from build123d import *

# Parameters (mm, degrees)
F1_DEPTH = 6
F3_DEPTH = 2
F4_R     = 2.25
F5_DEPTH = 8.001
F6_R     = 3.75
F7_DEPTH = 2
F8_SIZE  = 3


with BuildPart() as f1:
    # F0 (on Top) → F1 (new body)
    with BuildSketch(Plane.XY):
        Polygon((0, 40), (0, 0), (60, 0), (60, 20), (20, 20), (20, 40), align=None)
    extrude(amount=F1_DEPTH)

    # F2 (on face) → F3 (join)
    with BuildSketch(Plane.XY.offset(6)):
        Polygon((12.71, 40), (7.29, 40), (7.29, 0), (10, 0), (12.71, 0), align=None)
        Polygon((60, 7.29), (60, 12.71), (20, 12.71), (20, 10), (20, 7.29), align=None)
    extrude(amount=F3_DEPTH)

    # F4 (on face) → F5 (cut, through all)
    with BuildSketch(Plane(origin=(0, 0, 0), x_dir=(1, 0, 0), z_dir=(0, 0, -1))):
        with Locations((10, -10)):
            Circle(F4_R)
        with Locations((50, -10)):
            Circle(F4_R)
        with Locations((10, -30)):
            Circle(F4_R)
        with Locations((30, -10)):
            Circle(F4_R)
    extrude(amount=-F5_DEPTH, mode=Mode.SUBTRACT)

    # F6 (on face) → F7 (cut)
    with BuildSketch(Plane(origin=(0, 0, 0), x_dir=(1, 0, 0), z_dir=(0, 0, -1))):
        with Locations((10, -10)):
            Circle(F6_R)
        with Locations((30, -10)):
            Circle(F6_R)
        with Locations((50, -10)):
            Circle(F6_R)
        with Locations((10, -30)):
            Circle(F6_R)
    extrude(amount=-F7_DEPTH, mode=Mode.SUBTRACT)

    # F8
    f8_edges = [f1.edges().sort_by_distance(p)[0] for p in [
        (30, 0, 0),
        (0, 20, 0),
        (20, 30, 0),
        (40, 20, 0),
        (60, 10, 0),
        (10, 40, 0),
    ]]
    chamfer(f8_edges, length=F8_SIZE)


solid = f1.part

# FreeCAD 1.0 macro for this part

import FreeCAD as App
import Part
import Sketcher
from FreeCAD import Vector


def edges_at(feature, points):
    """Names of the edges that pass closest to the given points."""
    edges = feature.Shape.Edges
    near = lambda p: min(range(len(edges)), key=lambda i: edges[i].distToShape(Part.Vertex(*p))[0])
    return sorted({f"Edge{near(p) + 1}" for p in points})

doc = App.newDocument("Part")
body = doc.addObject("PartDesign::Body", "Body")

sketch1 = body.newObject("Sketcher::SketchObject", "Sketch")
sketch1.AttachmentSupport = (doc.getObject("XY_Plane"), [""])
sketch1.MapMode = "FlatFace"
sketch1.addGeometry([
    Part.LineSegment(Vector(0, 40, 0), Vector(0, 0, 0)),
    Part.LineSegment(Vector(0, 0, 0), Vector(60, 0, 0)),
    Part.LineSegment(Vector(60, 0, 0), Vector(60, 20, 0)),
    Part.LineSegment(Vector(60, 20, 0), Vector(20, 20, 0)),
    Part.LineSegment(Vector(20, 20, 0), Vector(20, 40, 0)),
    Part.LineSegment(Vector(20, 40, 0), Vector(0, 40, 0)),
], False)
sketch1.addConstraint([
    Sketcher.Constraint("Coincident", 0, 2, 1, 1),
    Sketcher.Constraint("Coincident", 1, 2, 2, 1),
    Sketcher.Constraint("Coincident", 2, 2, 3, 1),
    Sketcher.Constraint("Coincident", 3, 2, 4, 1),
    Sketcher.Constraint("Coincident", 4, 2, 5, 1),
    Sketcher.Constraint("Coincident", 5, 2, 0, 1),
    Sketcher.Constraint("Vertical", 0),
    Sketcher.Constraint("Horizontal", 1),
    Sketcher.Constraint("Vertical", 2),
    Sketcher.Constraint("Horizontal", 3),
    Sketcher.Constraint("Vertical", 4),
    Sketcher.Constraint("Horizontal", 5),
    Sketcher.Constraint("Coincident", 0, 2, -1, 1),
    Sketcher.Constraint("Equal", 3, 0),
    Sketcher.Constraint("Equal", 5, 2),
    Sketcher.Constraint("Equal", 2, 4),
    Sketcher.Constraint("DistanceX", 1, 1, 1, 2, 60.0),
])
pad1 = body.newObject("PartDesign::Pad", "Pad")
pad1.Profile = sketch1
pad1.Length = 6

sketch2 = body.newObject("Sketcher::SketchObject", "Sketch001")
sketch2.AttachmentSupport = (doc.getObject("XY_Plane"), [""])
sketch2.MapMode = "FlatFace"
sketch2.AttachmentOffset = App.Placement(Vector(0, 0, 6), App.Rotation())
sketch2.addGeometry([
    Part.LineSegment(Vector(12.71, 40, 0), Vector(7.29, 40, 0)),
    Part.LineSegment(Vector(7.29, 40, 0), Vector(7.29, 0, 0)),
    Part.LineSegment(Vector(7.29, 0, 0), Vector(12.71, 0, 0)),
    Part.LineSegment(Vector(12.71, 0, 0), Vector(12.71, 40, 0)),
    Part.LineSegment(Vector(60, 7.29, 0), Vector(60, 12.71, 0)),
    Part.LineSegment(Vector(60, 12.71, 0), Vector(20, 12.71, 0)),
    Part.LineSegment(Vector(20, 12.71, 0), Vector(20, 7.29, 0)),
    Part.LineSegment(Vector(20, 7.29, 0), Vector(60, 7.29, 0)),
], False)
sketch2.addConstraint([
    Sketcher.Constraint("Coincident", 0, 2, 1, 1),
    Sketcher.Constraint("Coincident", 1, 2, 2, 1),
    Sketcher.Constraint("Coincident", 2, 2, 3, 1),
    Sketcher.Constraint("Coincident", 3, 2, 0, 1),
    Sketcher.Constraint("Coincident", 4, 2, 5, 1),
    Sketcher.Constraint("Coincident", 5, 2, 6, 1),
    Sketcher.Constraint("Coincident", 6, 2, 7, 1),
    Sketcher.Constraint("Coincident", 7, 2, 4, 1),
    Sketcher.Constraint("Horizontal", 0),
    Sketcher.Constraint("Vertical", 1),
    Sketcher.Constraint("Horizontal", 2),
    Sketcher.Constraint("Vertical", 3),
    Sketcher.Constraint("Vertical", 4),
    Sketcher.Constraint("Horizontal", 5),
    Sketcher.Constraint("Vertical", 6),
    Sketcher.Constraint("Horizontal", 7),
    Sketcher.Constraint("PointOnObject", 1, 2, -1),
    Sketcher.Constraint("Equal", 7, 1),
    Sketcher.Constraint("Equal", 2, 4),
    Sketcher.Constraint("DistanceX", 5, 2, 5, 1, 40.0),
    Sketcher.Constraint("DistanceX", -1, 1, 4, 2, 60.0),
    Sketcher.Constraint("DistanceX", 0, 2, 0, 1, 5.42),
    Sketcher.Constraint("DistanceX", -1, 1, 0, 2, 7.29),
    Sketcher.Constraint("DistanceY", -1, 1, 4, 2, 12.71),
])
pad2 = body.newObject("PartDesign::Pad", "Pad001")
pad2.Profile = sketch2
pad2.Length = 2

sketch3 = body.newObject("Sketcher::SketchObject", "Sketch002")
sketch3.AttachmentSupport = (doc.getObject("XY_Plane"), [""])
sketch3.MapMode = "FlatFace"
sketch3.addGeometry([
    Part.Circle(Vector(10, 10, 0), Vector(0, 0, 1), 2.25),
    Part.Circle(Vector(50, 10, 0), Vector(0, 0, 1), 2.25),
    Part.Circle(Vector(10, 30, 0), Vector(0, 0, 1), 2.25),
    Part.Circle(Vector(30, 10, 0), Vector(0, 0, 1), 2.25),
], False)
sketch3.addConstraint([
    Sketcher.Constraint("Equal", 0, 1),
    Sketcher.Constraint("Equal", 1, 2),
    Sketcher.Constraint("Equal", 2, 3),
    Sketcher.Constraint("Horizontal", 0, 3, 1, 3),
    Sketcher.Constraint("Horizontal", 1, 3, 3, 3),
    Sketcher.Constraint("Vertical", 0, 3, 2, 3),
    Sketcher.Constraint("Diameter", 0, 4.5),
    Sketcher.Constraint("DistanceX", -1, 1, 0, 3, 10.0),
    Sketcher.Constraint("DistanceY", -1, 1, 0, 3, 10.0),
    Sketcher.Constraint("DistanceX", -1, 1, 1, 3, 50.0),
    Sketcher.Constraint("DistanceY", -1, 1, 2, 3, 30.0),
    Sketcher.Constraint("DistanceX", -1, 1, 3, 3, 30.0),
])
pocket1 = body.newObject("PartDesign::Pocket", "Pocket")
pocket1.Profile = sketch3
pocket1.Type = "ThroughAll"
pocket1.Reversed = True

sketch4 = body.newObject("Sketcher::SketchObject", "Sketch003")
sketch4.AttachmentSupport = (doc.getObject("XY_Plane"), [""])
sketch4.MapMode = "FlatFace"
sketch4.addGeometry([
    Part.Circle(Vector(10, 10, 0), Vector(0, 0, 1), 3.75),
    Part.Circle(Vector(30, 10, 0), Vector(0, 0, 1), 3.75),
    Part.Circle(Vector(50, 10, 0), Vector(0, 0, 1), 3.75),
    Part.Circle(Vector(10, 30, 0), Vector(0, 0, 1), 3.75),
], False)
sketch4.addConstraint([
    Sketcher.Constraint("Equal", 0, 1),
    Sketcher.Constraint("Equal", 1, 2),
    Sketcher.Constraint("Equal", 2, 3),
    Sketcher.Constraint("Horizontal", 0, 3, 1, 3),
    Sketcher.Constraint("Horizontal", 1, 3, 2, 3),
    Sketcher.Constraint("Vertical", 0, 3, 3, 3),
    Sketcher.Constraint("Diameter", 0, 7.5),
    Sketcher.Constraint("DistanceX", -1, 1, 0, 3, 10.0),
    Sketcher.Constraint("DistanceY", -1, 1, 0, 3, 10.0),
    Sketcher.Constraint("DistanceX", -1, 1, 1, 3, 30.0),
    Sketcher.Constraint("DistanceX", -1, 1, 2, 3, 50.0),
    Sketcher.Constraint("DistanceY", -1, 1, 3, 3, 30.0),
])
pocket2 = body.newObject("PartDesign::Pocket", "Pocket001")
pocket2.Profile = sketch4
pocket2.Length = 2
pocket2.Reversed = True
doc.recompute()

chamfer = body.newObject("PartDesign::Chamfer", "Chamfer")
chamfer.Base = (pocket2, edges_at(pocket2, [
    (30, 0, 0),
    (0, 20, 0),
    (20, 30, 0),
    (40, 20, 0),
    (60, 10, 0),
    (10, 40, 0),
]))
chamfer.Size = 3

doc.recompute()
